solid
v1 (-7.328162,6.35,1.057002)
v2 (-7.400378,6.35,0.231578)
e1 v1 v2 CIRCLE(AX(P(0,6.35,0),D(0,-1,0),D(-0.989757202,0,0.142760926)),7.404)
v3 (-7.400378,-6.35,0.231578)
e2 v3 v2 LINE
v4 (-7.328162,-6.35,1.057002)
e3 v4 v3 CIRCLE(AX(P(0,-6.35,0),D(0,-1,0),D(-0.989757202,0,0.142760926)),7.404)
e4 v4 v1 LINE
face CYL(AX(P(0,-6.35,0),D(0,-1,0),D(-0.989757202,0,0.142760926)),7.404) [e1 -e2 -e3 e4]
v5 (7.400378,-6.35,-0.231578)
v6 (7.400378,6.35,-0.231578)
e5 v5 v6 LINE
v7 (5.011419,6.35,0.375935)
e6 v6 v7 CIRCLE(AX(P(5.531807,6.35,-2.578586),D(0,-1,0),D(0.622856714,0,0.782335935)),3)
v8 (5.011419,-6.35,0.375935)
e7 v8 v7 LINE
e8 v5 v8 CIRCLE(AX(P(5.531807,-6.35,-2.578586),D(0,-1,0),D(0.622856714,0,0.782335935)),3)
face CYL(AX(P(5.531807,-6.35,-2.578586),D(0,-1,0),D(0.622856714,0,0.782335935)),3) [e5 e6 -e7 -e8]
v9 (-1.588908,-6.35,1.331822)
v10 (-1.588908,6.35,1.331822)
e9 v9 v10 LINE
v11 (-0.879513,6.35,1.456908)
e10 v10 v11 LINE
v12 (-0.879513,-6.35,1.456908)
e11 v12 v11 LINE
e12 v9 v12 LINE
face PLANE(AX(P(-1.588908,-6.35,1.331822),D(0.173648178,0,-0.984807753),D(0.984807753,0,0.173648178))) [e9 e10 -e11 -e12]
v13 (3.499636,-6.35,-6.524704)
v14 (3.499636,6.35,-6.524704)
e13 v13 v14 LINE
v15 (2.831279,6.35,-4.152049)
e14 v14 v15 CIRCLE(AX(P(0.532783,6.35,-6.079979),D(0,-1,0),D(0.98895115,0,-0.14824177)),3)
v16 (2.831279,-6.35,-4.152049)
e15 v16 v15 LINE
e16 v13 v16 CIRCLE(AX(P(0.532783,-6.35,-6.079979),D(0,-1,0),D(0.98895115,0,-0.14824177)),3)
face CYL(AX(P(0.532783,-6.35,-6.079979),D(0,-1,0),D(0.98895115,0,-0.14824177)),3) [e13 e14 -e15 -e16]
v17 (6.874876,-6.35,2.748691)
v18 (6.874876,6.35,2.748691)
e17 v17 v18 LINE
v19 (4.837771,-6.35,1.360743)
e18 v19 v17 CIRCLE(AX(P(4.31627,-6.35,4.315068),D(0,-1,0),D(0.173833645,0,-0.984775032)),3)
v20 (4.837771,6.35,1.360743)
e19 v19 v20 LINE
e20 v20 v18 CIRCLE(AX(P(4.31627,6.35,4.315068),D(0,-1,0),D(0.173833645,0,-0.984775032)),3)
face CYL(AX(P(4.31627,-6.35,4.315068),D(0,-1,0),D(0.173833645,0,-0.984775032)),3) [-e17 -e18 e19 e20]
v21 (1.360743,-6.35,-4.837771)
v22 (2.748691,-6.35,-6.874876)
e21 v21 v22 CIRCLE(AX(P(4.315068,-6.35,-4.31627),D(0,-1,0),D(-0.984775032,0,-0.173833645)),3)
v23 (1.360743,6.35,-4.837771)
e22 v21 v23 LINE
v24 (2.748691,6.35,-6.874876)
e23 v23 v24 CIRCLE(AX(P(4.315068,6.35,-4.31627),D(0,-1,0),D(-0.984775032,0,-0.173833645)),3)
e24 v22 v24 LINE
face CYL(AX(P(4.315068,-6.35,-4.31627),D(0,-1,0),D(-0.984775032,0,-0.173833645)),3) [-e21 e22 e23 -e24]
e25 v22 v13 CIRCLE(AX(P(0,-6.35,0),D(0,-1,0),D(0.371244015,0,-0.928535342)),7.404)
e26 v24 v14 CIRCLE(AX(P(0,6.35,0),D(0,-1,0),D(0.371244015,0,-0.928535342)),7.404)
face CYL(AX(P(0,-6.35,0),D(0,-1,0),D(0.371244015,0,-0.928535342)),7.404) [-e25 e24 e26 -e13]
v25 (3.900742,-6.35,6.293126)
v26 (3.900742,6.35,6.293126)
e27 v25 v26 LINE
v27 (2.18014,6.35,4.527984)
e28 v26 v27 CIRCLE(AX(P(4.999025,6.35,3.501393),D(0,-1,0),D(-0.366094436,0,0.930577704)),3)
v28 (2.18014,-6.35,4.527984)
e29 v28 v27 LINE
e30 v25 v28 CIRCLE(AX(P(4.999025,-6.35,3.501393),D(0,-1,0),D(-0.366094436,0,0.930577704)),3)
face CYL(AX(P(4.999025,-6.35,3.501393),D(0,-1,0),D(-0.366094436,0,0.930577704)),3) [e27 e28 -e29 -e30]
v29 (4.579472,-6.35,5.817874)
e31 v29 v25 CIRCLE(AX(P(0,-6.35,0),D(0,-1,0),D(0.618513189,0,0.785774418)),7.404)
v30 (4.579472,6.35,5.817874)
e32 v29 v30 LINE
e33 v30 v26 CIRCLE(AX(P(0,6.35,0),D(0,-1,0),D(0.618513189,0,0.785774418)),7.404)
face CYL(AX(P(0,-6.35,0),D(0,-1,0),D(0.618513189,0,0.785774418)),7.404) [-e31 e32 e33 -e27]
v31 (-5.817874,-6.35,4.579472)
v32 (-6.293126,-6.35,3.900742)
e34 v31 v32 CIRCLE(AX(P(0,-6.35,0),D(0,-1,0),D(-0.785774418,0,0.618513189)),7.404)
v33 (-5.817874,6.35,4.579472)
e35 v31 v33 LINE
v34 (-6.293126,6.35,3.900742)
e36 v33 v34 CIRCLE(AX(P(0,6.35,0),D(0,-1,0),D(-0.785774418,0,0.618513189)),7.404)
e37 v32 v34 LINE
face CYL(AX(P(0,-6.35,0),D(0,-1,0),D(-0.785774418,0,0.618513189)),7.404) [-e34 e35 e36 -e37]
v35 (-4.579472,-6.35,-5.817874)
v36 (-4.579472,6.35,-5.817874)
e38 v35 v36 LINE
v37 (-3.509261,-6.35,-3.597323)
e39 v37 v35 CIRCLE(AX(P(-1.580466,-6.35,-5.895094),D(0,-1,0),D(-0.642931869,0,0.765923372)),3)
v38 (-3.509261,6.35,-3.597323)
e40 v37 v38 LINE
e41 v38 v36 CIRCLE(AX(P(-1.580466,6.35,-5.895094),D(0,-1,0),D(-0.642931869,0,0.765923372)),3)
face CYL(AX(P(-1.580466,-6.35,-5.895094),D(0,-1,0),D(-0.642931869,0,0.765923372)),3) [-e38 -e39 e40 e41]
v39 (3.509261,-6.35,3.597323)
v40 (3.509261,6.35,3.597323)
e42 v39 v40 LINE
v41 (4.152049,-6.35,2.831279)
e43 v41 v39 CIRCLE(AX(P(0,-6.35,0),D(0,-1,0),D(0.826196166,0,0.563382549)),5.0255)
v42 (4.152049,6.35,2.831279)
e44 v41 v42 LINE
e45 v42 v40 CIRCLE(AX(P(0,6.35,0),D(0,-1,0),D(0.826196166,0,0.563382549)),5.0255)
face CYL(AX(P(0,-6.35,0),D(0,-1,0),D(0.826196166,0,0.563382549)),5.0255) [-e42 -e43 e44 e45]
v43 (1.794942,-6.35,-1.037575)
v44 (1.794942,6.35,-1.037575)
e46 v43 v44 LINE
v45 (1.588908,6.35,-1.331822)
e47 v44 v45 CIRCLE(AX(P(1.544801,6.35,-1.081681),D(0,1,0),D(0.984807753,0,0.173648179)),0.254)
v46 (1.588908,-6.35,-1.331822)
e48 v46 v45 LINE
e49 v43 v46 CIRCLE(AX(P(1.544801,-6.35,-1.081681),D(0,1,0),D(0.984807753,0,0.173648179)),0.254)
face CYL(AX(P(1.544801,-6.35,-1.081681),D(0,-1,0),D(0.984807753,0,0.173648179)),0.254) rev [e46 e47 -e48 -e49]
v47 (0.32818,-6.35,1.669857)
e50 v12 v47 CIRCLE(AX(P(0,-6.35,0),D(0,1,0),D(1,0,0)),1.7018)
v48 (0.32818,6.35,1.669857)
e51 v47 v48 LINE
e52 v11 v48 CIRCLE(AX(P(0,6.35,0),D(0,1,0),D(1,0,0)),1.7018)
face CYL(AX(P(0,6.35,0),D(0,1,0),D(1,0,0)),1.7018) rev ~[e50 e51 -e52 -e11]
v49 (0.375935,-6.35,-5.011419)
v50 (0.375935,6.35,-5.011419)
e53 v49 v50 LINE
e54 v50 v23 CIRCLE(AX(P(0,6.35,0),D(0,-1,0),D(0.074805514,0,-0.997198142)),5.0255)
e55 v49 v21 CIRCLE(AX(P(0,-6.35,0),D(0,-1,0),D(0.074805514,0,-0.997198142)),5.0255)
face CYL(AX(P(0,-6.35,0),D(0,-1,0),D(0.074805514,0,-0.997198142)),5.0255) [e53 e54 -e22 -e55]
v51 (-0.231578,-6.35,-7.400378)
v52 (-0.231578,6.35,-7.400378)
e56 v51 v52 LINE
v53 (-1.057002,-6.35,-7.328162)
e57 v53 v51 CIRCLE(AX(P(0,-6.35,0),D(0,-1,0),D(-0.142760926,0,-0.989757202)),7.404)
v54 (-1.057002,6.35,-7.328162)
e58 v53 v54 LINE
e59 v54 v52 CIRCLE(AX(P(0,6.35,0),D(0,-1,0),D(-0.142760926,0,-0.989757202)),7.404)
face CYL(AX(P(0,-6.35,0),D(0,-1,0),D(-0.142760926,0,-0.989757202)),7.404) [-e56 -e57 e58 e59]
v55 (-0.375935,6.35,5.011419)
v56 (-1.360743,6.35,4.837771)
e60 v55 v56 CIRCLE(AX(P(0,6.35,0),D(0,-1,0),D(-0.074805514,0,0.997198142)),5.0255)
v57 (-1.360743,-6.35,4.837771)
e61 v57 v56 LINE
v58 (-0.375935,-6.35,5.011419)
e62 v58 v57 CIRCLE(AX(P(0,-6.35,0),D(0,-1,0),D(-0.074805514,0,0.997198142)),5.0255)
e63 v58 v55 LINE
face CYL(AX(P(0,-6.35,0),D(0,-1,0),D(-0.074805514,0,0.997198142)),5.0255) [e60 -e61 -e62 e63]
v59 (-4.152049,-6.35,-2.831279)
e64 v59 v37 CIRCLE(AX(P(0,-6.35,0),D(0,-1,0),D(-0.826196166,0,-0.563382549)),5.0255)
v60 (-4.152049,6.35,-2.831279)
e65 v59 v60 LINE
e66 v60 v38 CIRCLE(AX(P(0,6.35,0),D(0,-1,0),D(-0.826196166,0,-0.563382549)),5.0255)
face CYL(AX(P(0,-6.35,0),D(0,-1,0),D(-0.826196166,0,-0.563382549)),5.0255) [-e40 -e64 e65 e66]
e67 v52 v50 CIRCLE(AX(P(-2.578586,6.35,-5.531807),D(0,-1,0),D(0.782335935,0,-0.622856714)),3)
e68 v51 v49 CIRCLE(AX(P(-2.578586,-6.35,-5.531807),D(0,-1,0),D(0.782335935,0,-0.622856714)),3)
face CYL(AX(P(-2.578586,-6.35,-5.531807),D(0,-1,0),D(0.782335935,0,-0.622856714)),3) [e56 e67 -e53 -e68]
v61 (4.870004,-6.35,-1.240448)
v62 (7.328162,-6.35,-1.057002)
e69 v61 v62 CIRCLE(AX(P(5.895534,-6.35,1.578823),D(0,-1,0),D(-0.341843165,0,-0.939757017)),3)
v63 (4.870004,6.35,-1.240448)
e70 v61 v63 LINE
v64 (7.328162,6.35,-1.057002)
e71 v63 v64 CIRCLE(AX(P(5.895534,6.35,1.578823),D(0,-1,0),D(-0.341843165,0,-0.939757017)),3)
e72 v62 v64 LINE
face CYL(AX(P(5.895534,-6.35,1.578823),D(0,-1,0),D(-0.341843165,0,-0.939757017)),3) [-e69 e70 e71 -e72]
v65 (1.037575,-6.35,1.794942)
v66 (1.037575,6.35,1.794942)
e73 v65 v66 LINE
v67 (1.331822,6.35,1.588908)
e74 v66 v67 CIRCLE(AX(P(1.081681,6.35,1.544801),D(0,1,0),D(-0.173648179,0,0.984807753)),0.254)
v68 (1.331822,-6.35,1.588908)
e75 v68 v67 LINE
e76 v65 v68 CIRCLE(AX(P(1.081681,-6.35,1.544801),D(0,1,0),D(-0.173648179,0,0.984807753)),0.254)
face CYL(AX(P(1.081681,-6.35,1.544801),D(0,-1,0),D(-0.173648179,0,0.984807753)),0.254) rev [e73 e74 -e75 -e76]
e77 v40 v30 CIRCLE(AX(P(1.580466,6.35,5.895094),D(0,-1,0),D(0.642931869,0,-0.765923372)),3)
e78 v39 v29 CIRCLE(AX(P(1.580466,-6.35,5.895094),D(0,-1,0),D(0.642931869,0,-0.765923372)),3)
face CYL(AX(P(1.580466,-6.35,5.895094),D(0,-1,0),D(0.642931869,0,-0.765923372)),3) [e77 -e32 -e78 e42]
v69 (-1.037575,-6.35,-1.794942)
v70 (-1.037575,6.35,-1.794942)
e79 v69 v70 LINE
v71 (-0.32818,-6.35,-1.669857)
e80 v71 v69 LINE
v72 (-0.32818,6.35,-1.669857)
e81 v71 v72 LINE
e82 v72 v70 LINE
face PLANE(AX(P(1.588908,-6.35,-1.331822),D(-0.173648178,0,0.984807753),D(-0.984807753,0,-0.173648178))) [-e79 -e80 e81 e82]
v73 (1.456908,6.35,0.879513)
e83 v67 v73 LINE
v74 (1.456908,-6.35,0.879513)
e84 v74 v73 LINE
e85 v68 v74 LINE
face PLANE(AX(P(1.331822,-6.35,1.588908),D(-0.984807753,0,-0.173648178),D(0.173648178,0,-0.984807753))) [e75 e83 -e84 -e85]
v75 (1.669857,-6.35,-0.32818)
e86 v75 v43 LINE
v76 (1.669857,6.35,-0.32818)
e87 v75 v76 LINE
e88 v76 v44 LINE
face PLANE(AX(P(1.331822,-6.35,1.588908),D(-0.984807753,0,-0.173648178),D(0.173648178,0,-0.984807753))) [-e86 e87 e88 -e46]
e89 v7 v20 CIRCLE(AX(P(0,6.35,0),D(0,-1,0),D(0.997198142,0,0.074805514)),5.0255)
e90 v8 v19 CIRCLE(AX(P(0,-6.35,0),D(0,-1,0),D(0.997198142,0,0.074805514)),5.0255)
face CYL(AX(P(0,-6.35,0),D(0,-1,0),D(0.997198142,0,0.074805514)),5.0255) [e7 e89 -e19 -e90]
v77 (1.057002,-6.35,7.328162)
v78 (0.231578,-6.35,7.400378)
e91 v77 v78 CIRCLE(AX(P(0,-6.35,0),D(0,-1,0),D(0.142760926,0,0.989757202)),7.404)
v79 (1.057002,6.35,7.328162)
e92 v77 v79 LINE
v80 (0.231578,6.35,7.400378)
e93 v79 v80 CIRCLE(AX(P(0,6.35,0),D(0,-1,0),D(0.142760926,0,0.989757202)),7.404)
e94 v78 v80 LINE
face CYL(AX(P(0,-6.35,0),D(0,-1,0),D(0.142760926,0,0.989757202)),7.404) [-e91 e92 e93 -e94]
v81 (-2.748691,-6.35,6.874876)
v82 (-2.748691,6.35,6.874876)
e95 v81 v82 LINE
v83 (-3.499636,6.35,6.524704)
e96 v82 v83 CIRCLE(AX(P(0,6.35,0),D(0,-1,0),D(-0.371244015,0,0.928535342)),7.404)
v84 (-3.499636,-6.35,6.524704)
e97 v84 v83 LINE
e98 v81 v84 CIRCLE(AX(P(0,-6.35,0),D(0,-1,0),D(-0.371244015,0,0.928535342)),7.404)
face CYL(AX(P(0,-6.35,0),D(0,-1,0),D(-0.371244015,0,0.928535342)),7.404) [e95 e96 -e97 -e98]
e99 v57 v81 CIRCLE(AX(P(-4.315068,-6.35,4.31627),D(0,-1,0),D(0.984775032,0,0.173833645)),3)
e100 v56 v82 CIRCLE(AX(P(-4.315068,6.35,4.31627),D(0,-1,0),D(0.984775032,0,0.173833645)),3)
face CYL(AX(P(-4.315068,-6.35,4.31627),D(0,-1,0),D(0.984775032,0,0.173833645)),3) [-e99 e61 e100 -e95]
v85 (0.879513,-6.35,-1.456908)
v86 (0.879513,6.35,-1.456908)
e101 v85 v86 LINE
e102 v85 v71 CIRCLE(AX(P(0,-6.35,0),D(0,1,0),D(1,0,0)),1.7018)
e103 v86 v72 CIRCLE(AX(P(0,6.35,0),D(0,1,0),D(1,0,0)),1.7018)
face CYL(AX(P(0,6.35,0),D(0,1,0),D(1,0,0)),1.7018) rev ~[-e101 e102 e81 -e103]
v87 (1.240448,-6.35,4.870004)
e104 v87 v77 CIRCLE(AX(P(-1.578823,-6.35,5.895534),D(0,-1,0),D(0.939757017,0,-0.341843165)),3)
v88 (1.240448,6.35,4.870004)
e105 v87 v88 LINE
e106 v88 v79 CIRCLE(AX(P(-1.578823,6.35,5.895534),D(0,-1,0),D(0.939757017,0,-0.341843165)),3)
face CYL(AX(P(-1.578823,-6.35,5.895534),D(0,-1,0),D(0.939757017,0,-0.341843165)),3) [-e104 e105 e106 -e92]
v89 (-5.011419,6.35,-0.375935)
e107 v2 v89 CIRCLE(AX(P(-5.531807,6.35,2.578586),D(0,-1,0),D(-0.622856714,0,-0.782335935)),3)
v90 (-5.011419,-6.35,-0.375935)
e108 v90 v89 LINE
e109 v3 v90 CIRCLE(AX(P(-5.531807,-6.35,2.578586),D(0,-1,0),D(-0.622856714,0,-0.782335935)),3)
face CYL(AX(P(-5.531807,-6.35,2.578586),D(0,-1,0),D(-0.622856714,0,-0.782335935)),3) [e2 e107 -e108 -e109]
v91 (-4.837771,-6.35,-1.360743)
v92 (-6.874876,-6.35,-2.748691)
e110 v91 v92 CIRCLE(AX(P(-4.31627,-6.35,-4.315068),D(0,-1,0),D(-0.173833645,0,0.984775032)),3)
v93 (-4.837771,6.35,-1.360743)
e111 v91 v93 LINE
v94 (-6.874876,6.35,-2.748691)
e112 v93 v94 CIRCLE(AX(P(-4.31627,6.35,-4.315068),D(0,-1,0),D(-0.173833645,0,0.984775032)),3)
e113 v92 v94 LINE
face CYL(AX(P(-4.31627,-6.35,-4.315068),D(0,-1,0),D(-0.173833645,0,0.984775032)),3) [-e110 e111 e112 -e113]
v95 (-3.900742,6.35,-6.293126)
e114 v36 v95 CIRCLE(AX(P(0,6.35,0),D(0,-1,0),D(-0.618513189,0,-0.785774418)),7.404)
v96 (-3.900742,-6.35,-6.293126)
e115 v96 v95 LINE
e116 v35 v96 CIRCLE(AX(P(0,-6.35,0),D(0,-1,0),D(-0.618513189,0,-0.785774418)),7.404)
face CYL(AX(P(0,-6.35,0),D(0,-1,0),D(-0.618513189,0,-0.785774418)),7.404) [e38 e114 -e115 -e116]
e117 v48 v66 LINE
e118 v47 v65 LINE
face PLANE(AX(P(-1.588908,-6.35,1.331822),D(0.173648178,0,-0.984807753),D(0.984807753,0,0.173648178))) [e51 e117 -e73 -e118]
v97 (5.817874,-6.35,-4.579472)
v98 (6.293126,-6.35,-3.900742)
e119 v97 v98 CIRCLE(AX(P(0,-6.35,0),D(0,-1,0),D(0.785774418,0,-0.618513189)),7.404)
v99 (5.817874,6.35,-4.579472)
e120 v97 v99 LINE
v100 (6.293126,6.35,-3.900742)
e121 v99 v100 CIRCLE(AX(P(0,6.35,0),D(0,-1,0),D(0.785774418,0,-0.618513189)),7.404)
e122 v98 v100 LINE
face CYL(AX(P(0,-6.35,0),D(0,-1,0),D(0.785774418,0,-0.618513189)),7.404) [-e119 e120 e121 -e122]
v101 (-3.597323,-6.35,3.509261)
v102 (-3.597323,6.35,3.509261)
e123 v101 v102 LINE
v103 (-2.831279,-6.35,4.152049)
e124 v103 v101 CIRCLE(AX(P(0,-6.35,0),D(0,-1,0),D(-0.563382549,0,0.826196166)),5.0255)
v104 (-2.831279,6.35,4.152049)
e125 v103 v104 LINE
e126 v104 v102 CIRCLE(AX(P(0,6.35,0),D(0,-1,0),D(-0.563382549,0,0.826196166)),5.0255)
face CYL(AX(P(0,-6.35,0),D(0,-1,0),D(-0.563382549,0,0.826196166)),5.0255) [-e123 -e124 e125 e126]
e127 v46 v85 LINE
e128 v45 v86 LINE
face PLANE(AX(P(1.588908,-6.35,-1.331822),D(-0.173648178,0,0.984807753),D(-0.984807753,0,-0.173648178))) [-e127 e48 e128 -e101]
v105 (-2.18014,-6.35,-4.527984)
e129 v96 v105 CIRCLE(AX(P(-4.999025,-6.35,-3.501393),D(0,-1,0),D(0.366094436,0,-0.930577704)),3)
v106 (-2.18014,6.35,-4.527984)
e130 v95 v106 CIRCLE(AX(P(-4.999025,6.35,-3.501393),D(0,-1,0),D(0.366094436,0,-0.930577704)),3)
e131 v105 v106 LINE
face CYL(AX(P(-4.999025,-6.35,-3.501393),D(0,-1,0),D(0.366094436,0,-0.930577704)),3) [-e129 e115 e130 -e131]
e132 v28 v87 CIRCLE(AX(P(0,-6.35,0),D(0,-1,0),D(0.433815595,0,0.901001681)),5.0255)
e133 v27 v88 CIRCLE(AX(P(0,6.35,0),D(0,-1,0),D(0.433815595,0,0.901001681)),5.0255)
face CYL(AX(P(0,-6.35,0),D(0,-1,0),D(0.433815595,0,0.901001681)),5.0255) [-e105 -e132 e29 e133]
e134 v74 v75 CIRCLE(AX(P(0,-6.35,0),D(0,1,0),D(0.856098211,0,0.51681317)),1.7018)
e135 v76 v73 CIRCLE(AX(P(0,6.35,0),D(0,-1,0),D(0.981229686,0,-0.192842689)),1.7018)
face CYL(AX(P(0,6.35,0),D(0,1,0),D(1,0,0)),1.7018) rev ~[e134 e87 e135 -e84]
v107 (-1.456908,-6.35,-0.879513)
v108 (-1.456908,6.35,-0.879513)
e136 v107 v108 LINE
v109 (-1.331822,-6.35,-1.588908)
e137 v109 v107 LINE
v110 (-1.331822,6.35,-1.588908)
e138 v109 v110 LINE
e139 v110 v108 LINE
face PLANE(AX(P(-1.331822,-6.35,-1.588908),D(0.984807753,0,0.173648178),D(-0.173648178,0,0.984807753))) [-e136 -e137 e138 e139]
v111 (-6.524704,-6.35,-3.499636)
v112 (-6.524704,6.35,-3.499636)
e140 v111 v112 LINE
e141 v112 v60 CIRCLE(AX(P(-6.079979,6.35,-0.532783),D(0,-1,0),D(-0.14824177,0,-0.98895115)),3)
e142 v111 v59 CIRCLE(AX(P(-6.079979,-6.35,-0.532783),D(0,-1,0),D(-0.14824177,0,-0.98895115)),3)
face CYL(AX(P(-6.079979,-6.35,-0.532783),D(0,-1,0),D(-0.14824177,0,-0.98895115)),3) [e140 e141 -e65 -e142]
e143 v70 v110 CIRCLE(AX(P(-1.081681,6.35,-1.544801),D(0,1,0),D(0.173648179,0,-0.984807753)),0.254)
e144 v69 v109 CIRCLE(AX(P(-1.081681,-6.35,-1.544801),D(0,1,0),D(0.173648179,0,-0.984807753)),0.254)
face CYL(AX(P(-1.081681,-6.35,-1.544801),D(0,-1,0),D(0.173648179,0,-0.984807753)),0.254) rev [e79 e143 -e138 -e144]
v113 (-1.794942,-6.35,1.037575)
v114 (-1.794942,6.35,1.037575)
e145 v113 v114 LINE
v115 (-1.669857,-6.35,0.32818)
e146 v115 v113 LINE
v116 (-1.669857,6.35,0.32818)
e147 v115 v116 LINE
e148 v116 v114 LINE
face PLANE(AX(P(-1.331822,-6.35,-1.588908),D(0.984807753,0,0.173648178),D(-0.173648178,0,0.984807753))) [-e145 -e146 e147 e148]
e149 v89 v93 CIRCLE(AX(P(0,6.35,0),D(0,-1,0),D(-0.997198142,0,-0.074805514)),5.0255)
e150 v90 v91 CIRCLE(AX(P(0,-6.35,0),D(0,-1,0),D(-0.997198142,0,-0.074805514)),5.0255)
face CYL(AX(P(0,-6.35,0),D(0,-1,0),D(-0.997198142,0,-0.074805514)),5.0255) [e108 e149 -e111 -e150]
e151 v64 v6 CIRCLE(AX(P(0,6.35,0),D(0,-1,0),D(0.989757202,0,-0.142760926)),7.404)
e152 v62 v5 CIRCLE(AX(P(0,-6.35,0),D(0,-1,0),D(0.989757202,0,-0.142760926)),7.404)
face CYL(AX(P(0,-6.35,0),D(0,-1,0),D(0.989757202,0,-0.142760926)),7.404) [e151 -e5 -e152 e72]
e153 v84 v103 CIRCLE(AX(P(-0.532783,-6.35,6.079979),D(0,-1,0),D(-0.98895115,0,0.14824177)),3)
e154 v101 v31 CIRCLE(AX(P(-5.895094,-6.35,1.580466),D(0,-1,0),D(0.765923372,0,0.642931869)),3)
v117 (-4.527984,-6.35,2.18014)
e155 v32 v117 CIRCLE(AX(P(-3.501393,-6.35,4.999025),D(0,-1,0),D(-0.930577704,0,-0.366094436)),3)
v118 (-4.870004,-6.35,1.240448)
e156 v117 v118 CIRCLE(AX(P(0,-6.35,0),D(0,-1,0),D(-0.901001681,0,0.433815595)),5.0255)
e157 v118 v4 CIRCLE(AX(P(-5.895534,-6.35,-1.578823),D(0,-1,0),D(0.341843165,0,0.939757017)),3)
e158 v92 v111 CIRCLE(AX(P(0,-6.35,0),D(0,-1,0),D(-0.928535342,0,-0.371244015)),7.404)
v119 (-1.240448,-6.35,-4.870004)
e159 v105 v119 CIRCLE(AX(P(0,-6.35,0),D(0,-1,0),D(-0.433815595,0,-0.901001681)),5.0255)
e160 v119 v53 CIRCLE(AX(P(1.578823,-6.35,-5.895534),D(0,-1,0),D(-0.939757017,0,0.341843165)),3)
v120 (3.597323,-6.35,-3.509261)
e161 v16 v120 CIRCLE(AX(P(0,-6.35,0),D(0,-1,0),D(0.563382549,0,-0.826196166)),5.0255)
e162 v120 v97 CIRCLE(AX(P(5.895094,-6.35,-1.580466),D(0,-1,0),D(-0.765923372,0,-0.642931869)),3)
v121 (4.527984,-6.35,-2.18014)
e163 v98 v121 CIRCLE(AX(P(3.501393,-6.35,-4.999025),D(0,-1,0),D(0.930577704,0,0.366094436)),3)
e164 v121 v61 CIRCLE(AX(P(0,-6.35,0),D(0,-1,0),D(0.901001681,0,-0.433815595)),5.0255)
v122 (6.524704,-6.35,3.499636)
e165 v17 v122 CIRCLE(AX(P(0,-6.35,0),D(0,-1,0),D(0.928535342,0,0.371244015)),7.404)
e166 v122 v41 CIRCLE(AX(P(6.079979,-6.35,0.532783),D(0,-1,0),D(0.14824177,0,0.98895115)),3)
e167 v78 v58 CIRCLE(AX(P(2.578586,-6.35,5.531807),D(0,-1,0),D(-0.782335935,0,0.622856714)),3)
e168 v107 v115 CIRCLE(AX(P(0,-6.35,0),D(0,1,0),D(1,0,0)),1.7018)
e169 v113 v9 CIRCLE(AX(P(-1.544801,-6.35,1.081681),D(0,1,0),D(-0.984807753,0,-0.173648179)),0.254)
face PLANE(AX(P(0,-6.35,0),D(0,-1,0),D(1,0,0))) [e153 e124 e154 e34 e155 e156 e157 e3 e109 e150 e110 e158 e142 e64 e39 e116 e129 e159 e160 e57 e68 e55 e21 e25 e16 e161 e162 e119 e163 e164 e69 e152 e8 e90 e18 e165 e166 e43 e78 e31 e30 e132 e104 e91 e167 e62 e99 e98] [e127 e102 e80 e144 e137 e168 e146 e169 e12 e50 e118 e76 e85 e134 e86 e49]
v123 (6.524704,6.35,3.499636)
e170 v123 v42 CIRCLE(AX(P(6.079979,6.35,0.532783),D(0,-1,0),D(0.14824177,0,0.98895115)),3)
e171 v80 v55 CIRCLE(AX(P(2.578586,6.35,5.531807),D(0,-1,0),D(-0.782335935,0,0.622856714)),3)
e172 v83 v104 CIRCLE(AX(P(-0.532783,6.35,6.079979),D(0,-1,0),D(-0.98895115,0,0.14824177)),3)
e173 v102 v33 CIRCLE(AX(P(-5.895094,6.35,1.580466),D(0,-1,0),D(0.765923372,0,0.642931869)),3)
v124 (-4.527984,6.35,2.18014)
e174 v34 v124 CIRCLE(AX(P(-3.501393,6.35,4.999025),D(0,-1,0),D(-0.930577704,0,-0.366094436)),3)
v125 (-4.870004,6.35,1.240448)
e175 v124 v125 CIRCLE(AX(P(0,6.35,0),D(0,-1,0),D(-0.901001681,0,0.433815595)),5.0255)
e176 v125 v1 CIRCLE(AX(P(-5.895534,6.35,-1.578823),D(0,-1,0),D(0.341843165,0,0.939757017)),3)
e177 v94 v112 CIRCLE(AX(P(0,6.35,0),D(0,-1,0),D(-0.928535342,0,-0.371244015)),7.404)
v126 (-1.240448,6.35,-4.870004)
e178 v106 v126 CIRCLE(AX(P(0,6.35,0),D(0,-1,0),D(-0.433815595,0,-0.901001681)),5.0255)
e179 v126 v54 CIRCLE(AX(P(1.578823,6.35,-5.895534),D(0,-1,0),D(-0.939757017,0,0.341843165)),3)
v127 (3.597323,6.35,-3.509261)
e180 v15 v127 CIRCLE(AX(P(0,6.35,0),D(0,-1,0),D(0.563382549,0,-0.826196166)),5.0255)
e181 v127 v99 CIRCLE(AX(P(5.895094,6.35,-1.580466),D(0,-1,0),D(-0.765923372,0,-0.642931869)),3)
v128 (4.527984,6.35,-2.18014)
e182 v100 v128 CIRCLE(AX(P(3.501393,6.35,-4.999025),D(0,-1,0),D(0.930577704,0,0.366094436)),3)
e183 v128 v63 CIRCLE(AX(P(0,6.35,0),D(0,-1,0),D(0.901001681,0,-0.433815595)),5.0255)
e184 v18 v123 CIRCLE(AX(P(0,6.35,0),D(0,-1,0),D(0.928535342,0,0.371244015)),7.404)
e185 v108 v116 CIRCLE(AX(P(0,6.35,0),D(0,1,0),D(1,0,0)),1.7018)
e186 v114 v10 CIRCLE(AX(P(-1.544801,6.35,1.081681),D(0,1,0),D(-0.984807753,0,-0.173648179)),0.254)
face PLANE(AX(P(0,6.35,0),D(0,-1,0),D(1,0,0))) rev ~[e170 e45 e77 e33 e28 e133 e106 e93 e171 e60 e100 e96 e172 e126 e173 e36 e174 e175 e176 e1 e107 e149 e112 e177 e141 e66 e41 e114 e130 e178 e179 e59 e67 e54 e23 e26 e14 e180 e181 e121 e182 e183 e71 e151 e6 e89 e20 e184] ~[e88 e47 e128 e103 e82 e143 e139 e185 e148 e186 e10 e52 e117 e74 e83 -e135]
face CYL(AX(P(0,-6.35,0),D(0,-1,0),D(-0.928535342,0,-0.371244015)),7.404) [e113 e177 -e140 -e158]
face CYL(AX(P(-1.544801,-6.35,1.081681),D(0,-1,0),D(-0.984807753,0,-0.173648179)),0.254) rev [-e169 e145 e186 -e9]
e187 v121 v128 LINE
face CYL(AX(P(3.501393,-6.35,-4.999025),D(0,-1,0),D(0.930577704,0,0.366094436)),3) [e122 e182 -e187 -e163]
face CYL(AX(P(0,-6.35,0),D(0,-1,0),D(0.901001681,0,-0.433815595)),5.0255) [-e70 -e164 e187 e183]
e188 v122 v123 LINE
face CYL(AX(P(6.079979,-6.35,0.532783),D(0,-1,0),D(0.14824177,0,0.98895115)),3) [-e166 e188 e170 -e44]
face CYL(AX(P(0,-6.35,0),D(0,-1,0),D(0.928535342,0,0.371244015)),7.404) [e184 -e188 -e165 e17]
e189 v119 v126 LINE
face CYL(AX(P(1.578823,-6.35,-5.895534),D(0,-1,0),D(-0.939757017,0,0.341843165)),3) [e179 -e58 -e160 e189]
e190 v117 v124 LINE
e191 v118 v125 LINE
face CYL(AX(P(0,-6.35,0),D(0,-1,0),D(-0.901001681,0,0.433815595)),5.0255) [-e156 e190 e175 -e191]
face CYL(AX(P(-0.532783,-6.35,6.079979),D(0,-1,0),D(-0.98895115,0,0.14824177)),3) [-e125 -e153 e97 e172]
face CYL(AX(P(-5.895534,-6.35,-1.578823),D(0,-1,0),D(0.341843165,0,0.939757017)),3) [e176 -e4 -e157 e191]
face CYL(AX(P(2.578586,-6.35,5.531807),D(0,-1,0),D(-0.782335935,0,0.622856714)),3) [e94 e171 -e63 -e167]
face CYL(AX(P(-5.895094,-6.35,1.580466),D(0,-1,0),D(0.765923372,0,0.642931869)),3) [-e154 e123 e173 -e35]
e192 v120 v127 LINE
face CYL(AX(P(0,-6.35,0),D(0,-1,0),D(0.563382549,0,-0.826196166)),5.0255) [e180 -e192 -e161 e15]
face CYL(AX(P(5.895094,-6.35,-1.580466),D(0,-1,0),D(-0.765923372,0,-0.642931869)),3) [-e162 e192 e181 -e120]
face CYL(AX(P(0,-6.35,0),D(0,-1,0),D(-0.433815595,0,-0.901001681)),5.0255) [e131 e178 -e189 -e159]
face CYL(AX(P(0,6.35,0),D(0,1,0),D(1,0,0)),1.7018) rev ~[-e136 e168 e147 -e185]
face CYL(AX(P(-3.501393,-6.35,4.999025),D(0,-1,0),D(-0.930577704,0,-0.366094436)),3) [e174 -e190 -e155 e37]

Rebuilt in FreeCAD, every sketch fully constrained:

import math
import FreeCAD as App
import Part
import Sketcher
from FreeCAD import Vector
Q = App.Units.Quantity

doc = App.newDocument("Part")
body = doc.addObject("PartDesign::Body", "Body")

sketch1 = body.newObject("Sketcher::SketchObject", "Sketch")
sketch1.AttachmentSupport = (doc.getObject("XZ_Plane"), [""])
sketch1.MapMode = "FlatFace"
sketch1.AttachmentOffset = App.Placement(Vector(0, 0, 0.25 * 25.4), App.Rotation())
sketch1.addGeometry(Part.ArcOfCircle(Part.Circle(Vector(5, 3.5, 0), Vector(0, 0, 1), 3), math.radians(111), math.radians(160)), False)
sketch1.addGeometry(Part.ArcOfCircle(Part.Circle(Vector(0, 0, 0), Vector(0, 0, 1), 5.03), math.radians(64.29), math.radians(75.71)), False)
sketch1.addGeometry(Part.ArcOfCircle(Part.Circle(Vector(-1.58, 5.9, 0), Vector(0, 0, 1), 3), math.radians(-20), math.radians(29)), False)
sketch1.addGeometry(Part.ArcOfCircle(Part.Circle(Vector(0, 0, 0), Vector(0, 0, 1), 7.4), math.radians(81.79), math.radians(88.21)), False)
sketch1.addGeometry(Part.ArcOfCircle(Part.Circle(Vector(2.58, 5.53, 0), Vector(0, 0, 1), 3), math.radians(141), math.radians(190)), False)
sketch1.addGeometry(Part.ArcOfCircle(Part.Circle(Vector(0, 0, 0), Vector(0, 0, 1), 5.03), math.radians(94.29), math.radians(105.71)), False)
sketch1.addGeometry(Part.ArcOfCircle(Part.Circle(Vector(-4.32, 4.32, 0), Vector(0, 0, 1), 3), math.radians(10), math.radians(59)), False)
sketch1.addGeometry(Part.ArcOfCircle(Part.Circle(Vector(0, 0, 0), Vector(0, 0, 1), 7.4), math.radians(111.79), math.radians(118.21)), False)
sketch1.addGeometry(Part.ArcOfCircle(Part.Circle(Vector(-0.53, 6.08, 0), Vector(0, 0, 1), 3), math.radians(171), math.radians(220)), False)
sketch1.addGeometry(Part.ArcOfCircle(Part.Circle(Vector(0, 0, 0), Vector(0, 0, 1), 5.03), math.radians(124.29), math.radians(135.71)), False)
sketch1.addGeometry(Part.ArcOfCircle(Part.Circle(Vector(-5.9, 1.58, 0), Vector(0, 0, 1), 3), math.radians(40), math.radians(89)), False)
sketch1.addGeometry(Part.ArcOfCircle(Part.Circle(Vector(0, 0, 0), Vector(0, 0, 1), 7.4), math.radians(141.79), math.radians(148.21)), False)
sketch1.addGeometry(Part.ArcOfCircle(Part.Circle(Vector(-3.5, 5, 0), Vector(0, 0, 1), 3), math.radians(-159), math.radians(-110)), False)
sketch1.addGeometry(Part.ArcOfCircle(Part.Circle(Vector(0, 0, 0), Vector(0, 0, 1), 5.03), math.radians(154.29), math.radians(165.71)), False)
sketch1.addGeometry(Part.ArcOfCircle(Part.Circle(Vector(-5.9, -1.58, 0), Vector(0, 0, 1), 3), math.radians(70), math.radians(119)), False)
sketch1.addGeometry(Part.ArcOfCircle(Part.Circle(Vector(0, 0, 0), Vector(0, 0, 1), 7.4), math.radians(171.79), math.radians(178.21)), False)
sketch1.addGeometry(Part.ArcOfCircle(Part.Circle(Vector(-5.53, 2.58, 0), Vector(0, 0, 1), 3), math.radians(-129), math.radians(-80)), False)
sketch1.addGeometry(Part.ArcOfCircle(Part.Circle(Vector(0, 0, 0), Vector(0, 0, 1), 5.03), math.radians(-175.71), math.radians(-164.29)), False)
sketch1.addGeometry(Part.ArcOfCircle(Part.Circle(Vector(-4.32, -4.32, 0), Vector(0, 0, 1), 3), math.radians(100), math.radians(149)), False)
sketch1.addGeometry(Part.ArcOfCircle(Part.Circle(Vector(0, 0, 0), Vector(0, 0, 1), 7.4), math.radians(-158.21), math.radians(-151.79)), False)
sketch1.addGeometry(Part.ArcOfCircle(Part.Circle(Vector(-6.08, -0.53, 0), Vector(0, 0, 1), 3), math.radians(-99), math.radians(-50)), False)
sketch1.addGeometry(Part.ArcOfCircle(Part.Circle(Vector(0, 0, 0), Vector(0, 0, 1), 5.03), math.radians(-145.71), math.radians(-134.29)), False)
sketch1.addGeometry(Part.ArcOfCircle(Part.Circle(Vector(-1.58, -5.9, 0), Vector(0, 0, 1), 3), math.radians(130), math.radians(179)), False)
sketch1.addGeometry(Part.ArcOfCircle(Part.Circle(Vector(0, 0, 0), Vector(0, 0, 1), 7.4), math.radians(-128.21), math.radians(-121.79)), False)
sketch1.addGeometry(Part.ArcOfCircle(Part.Circle(Vector(-5, -3.5, 0), Vector(0, 0, 1), 3), math.radians(-69), math.radians(-20)), False)
sketch1.addGeometry(Part.ArcOfCircle(Part.Circle(Vector(0, 0, 0), Vector(0, 0, 1), 5.03), math.radians(-115.71), math.radians(-104.29)), False)
sketch1.addGeometry(Part.ArcOfCircle(Part.Circle(Vector(1.58, -5.9, 0), Vector(0, 0, 1), 3), math.radians(160), math.radians(209)), False)
sketch1.addGeometry(Part.ArcOfCircle(Part.Circle(Vector(0, 0, 0), Vector(0, 0, 1), 7.4), math.radians(-98.21), math.radians(-91.79)), False)
sketch1.addGeometry(Part.ArcOfCircle(Part.Circle(Vector(-2.58, -5.53, 0), Vector(0, 0, 1), 3), math.radians(-39), math.radians(10)), False)
sketch1.addGeometry(Part.ArcOfCircle(Part.Circle(Vector(0, 0, 0), Vector(0, 0, 1), 5.03), math.radians(-85.71), math.radians(-74.29)), False)
sketch1.addGeometry(Part.ArcOfCircle(Part.Circle(Vector(4.32, -4.32, 0), Vector(0, 0, 1), 3), math.radians(-170), math.radians(-121)), False)
sketch1.addGeometry(Part.ArcOfCircle(Part.Circle(Vector(0, 0, 0), Vector(0, 0, 1), 7.4), math.radians(-68.21), math.radians(-61.79)), False)
sketch1.addGeometry(Part.ArcOfCircle(Part.Circle(Vector(0.53, -6.08, 0), Vector(0, 0, 1), 3), math.radians(-9), math.radians(40)), False)
sketch1.addGeometry(Part.ArcOfCircle(Part.Circle(Vector(0, 0, 0), Vector(0, 0, 1), 5.03), math.radians(-55.71), math.radians(-44.29)), False)
sketch1.addGeometry(Part.ArcOfCircle(Part.Circle(Vector(5.9, -1.58, 0), Vector(0, 0, 1), 3), math.radians(-140), math.radians(-91)), False)
sketch1.addGeometry(Part.ArcOfCircle(Part.Circle(Vector(0, 0, 0), Vector(0, 0, 1), 7.4), math.radians(-38.21), math.radians(-31.79)), False)
sketch1.addGeometry(Part.ArcOfCircle(Part.Circle(Vector(3.5, -5, 0), Vector(0, 0, 1), 3), math.radians(21), math.radians(70)), False)
sketch1.addGeometry(Part.ArcOfCircle(Part.Circle(Vector(0, 0, 0), Vector(0, 0, 1), 5.03), math.radians(-25.71), math.radians(-14.29)), False)
sketch1.addGeometry(Part.ArcOfCircle(Part.Circle(Vector(5.9, 1.58, 0), Vector(0, 0, 1), 3), math.radians(-110), math.radians(-61)), False)
sketch1.addGeometry(Part.ArcOfCircle(Part.Circle(Vector(0, 0, 0), Vector(0, 0, 1), 7.4), math.radians(-8.21), math.radians(-1.79)), False)
sketch1.addGeometry(Part.ArcOfCircle(Part.Circle(Vector(5.53, -2.58, 0), Vector(0, 0, 1), 3), math.radians(51), math.radians(100)), False)
sketch1.addGeometry(Part.ArcOfCircle(Part.Circle(Vector(0, 0, 0), Vector(0, 0, 1), 5.03), math.radians(4.29), math.radians(15.71)), False)
sketch1.addGeometry(Part.ArcOfCircle(Part.Circle(Vector(4.32, 4.32, 0), Vector(0, 0, 1), 3), math.radians(-80), math.radians(-31)), False)
sketch1.addGeometry(Part.ArcOfCircle(Part.Circle(Vector(0, 0, 0), Vector(0, 0, 1), 7.4), math.radians(21.79), math.radians(28.21)), False)
sketch1.addGeometry(Part.ArcOfCircle(Part.Circle(Vector(6.08, 0.53, 0), Vector(0, 0, 1), 3), math.radians(81), math.radians(130)), False)
sketch1.addGeometry(Part.ArcOfCircle(Part.Circle(Vector(0, 0, 0), Vector(0, 0, 1), 5.03), math.radians(34.29), math.radians(45.71)), False)
sketch1.addGeometry(Part.ArcOfCircle(Part.Circle(Vector(1.58, 5.9, 0), Vector(0, 0, 1), 3), math.radians(-50), math.radians(-1)), False)
sketch1.addGeometry(Part.ArcOfCircle(Part.Circle(Vector(0, 0, 0), Vector(0, 0, 1), 7.4), math.radians(51.79), math.radians(58.21)), False)
sketch1.addGeometry(Part.ArcOfCircle(Part.Circle(Vector(1.08, 1.54, 0), Vector(0, 0, 1), 0.25), math.radians(10), math.radians(100)), False)
sketch1.addGeometry(Part.LineSegment(Vector(1.33, 1.59, 0), Vector(1.79, -1.04, 0)), False)
sketch1.addGeometry(Part.ArcOfCircle(Part.Circle(Vector(1.54, -1.08, 0), Vector(0, 0, 1), 0.25), math.radians(-80), math.radians(10)), False)
sketch1.addGeometry(Part.LineSegment(Vector(1.59, -1.33, 0), Vector(-1.04, -1.79, 0)), False)
sketch1.addGeometry(Part.ArcOfCircle(Part.Circle(Vector(-1.08, -1.54, 0), Vector(0, 0, 1), 0.25), math.radians(-170), math.radians(-80)), False)
sketch1.addGeometry(Part.LineSegment(Vector(-1.33, -1.59, 0), Vector(-1.79, 1.04, 0)), False)
sketch1.addGeometry(Part.ArcOfCircle(Part.Circle(Vector(-1.54, 1.08, 0), Vector(0, 0, 1), 0.25), math.radians(100), math.radians(190)), False)
sketch1.addGeometry(Part.LineSegment(Vector(-1.59, 1.33, 0), Vector(1.04, 1.79, 0)), False)
sketch1.addConstraint(Sketcher.Constraint("Coincident", 0, 2, 1, 1))
sketch1.addConstraint(Sketcher.Constraint("Coincident", 1, 2, 2, 1))
sketch1.addConstraint(Sketcher.Constraint("Coincident", 2, 2, 3, 1))
sketch1.addConstraint(Sketcher.Constraint("Coincident", 3, 2, 4, 1))
sketch1.addConstraint(Sketcher.Constraint("Coincident", 4, 2, 5, 1))
sketch1.addConstraint(Sketcher.Constraint("Coincident", 5, 2, 6, 1))
sketch1.addConstraint(Sketcher.Constraint("Coincident", 6, 2, 7, 1))
sketch1.addConstraint(Sketcher.Constraint("Coincident", 7, 2, 8, 1))
sketch1.addConstraint(Sketcher.Constraint("Coincident", 8, 2, 9, 1))
sketch1.addConstraint(Sketcher.Constraint("Coincident", 9, 2, 10, 1))
sketch1.addConstraint(Sketcher.Constraint("Coincident", 10, 2, 11, 1))
sketch1.addConstraint(Sketcher.Constraint("Coincident", 11, 2, 12, 1))
sketch1.addConstraint(Sketcher.Constraint("Coincident", 12, 2, 13, 1))
sketch1.addConstraint(Sketcher.Constraint("Coincident", 13, 2, 14, 1))
sketch1.addConstraint(Sketcher.Constraint("Coincident", 14, 2, 15, 1))
sketch1.addConstraint(Sketcher.Constraint("Coincident", 15, 2, 16, 1))
sketch1.addConstraint(Sketcher.Constraint("Coincident", 16, 2, 17, 1))
sketch1.addConstraint(Sketcher.Constraint("Coincident", 17, 2, 18, 1))
sketch1.addConstraint(Sketcher.Constraint("Coincident", 18, 2, 19, 1))
sketch1.addConstraint(Sketcher.Constraint("Coincident", 19, 2, 20, 1))
sketch1.addConstraint(Sketcher.Constraint("Coincident", 20, 2, 21, 1))
sketch1.addConstraint(Sketcher.Constraint("Coincident", 21, 2, 22, 1))
sketch1.addConstraint(Sketcher.Constraint("Coincident", 22, 2, 23, 1))
sketch1.addConstraint(Sketcher.Constraint("Coincident", 23, 2, 24, 1))
sketch1.addConstraint(Sketcher.Constraint("Coincident", 24, 2, 25, 1))
sketch1.addConstraint(Sketcher.Constraint("Coincident", 25, 2, 26, 1))
sketch1.addConstraint(Sketcher.Constraint("Coincident", 26, 2, 27, 1))
sketch1.addConstraint(Sketcher.Constraint("Coincident", 27, 2, 28, 1))
sketch1.addConstraint(Sketcher.Constraint("Coincident", 28, 2, 29, 1))
sketch1.addConstraint(Sketcher.Constraint("Coincident", 29, 2, 30, 1))
sketch1.addConstraint(Sketcher.Constraint("Coincident", 30, 2, 31, 1))
sketch1.addConstraint(Sketcher.Constraint("Coincident", 31, 2, 32, 1))
sketch1.addConstraint(Sketcher.Constraint("Coincident", 32, 2, 33, 1))
sketch1.addConstraint(Sketcher.Constraint("Coincident", 33, 2, 34, 1))
sketch1.addConstraint(Sketcher.Constraint("Coincident", 34, 2, 35, 1))
sketch1.addConstraint(Sketcher.Constraint("Coincident", 35, 2, 36, 1))
sketch1.addConstraint(Sketcher.Constraint("Coincident", 36, 2, 37, 1))
sketch1.addConstraint(Sketcher.Constraint("Coincident", 37, 2, 38, 1))
sketch1.addConstraint(Sketcher.Constraint("Coincident", 38, 2, 39, 1))
sketch1.addConstraint(Sketcher.Constraint("Coincident", 39, 2, 40, 1))
sketch1.addConstraint(Sketcher.Constraint("Coincident", 40, 2, 41, 1))
sketch1.addConstraint(Sketcher.Constraint("Coincident", 41, 2, 42, 1))
sketch1.addConstraint(Sketcher.Constraint("Coincident", 42, 2, 43, 1))
sketch1.addConstraint(Sketcher.Constraint("Coincident", 43, 2, 44, 1))
sketch1.addConstraint(Sketcher.Constraint("Coincident", 44, 2, 45, 1))
sketch1.addConstraint(Sketcher.Constraint("Coincident", 45, 2, 46, 1))
sketch1.addConstraint(Sketcher.Constraint("Coincident", 46, 2, 47, 1))
sketch1.addConstraint(Sketcher.Constraint("Coincident", 47, 2, 0, 1))
sketch1.addConstraint(Sketcher.Constraint("Tangent", 48, 1, 49, 1))
sketch1.addConstraint(Sketcher.Constraint("Tangent", 49, 2, 50, 2))
sketch1.addConstraint(Sketcher.Constraint("Tangent", 50, 1, 51, 1))
sketch1.addConstraint(Sketcher.Constraint("Tangent", 51, 2, 52, 2))
sketch1.addConstraint(Sketcher.Constraint("Tangent", 52, 1, 53, 1))
sketch1.addConstraint(Sketcher.Constraint("Tangent", 53, 2, 54, 2))
sketch1.addConstraint(Sketcher.Constraint("Tangent", 54, 1, 55, 1))
sketch1.addConstraint(Sketcher.Constraint("Tangent", 55, 2, 48, 2))
sketch1.addConstraint(Sketcher.Constraint("Coincident", 1, 3, -1, 1))
sketch1.addConstraint(Sketcher.Constraint("Coincident", 3, 3, -1, 1))
sketch1.addConstraint(Sketcher.Constraint("Coincident", 5, 3, -1, 1))
sketch1.addConstraint(Sketcher.Constraint("Coincident", 7, 3, -1, 1))
sketch1.addConstraint(Sketcher.Constraint("Coincident", 9, 3, -1, 1))
sketch1.addConstraint(Sketcher.Constraint("Coincident", 11, 3, -1, 1))
sketch1.addConstraint(Sketcher.Constraint("Coincident", 13, 3, -1, 1))
sketch1.addConstraint(Sketcher.Constraint("Coincident", 15, 3, -1, 1))
sketch1.addConstraint(Sketcher.Constraint("Coincident", 17, 3, -1, 1))
sketch1.addConstraint(Sketcher.Constraint("Coincident", 19, 3, -1, 1))
sketch1.addConstraint(Sketcher.Constraint("Coincident", 21, 3, -1, 1))
sketch1.addConstraint(Sketcher.Constraint("Coincident", 23, 3, -1, 1))
sketch1.addConstraint(Sketcher.Constraint("Coincident", 25, 3, -1, 1))
sketch1.addConstraint(Sketcher.Constraint("Coincident", 27, 3, -1, 1))
sketch1.addConstraint(Sketcher.Constraint("Coincident", 29, 3, -1, 1))
sketch1.addConstraint(Sketcher.Constraint("Coincident", 31, 3, -1, 1))
sketch1.addConstraint(Sketcher.Constraint("Coincident", 33, 3, -1, 1))
sketch1.addConstraint(Sketcher.Constraint("Coincident", 35, 3, -1, 1))
sketch1.addConstraint(Sketcher.Constraint("Coincident", 37, 3, -1, 1))
sketch1.addConstraint(Sketcher.Constraint("Coincident", 39, 3, -1, 1))
sketch1.addConstraint(Sketcher.Constraint("Coincident", 41, 3, -1, 1))
sketch1.addConstraint(Sketcher.Constraint("Coincident", 43, 3, -1, 1))
sketch1.addConstraint(Sketcher.Constraint("Coincident", 45, 3, -1, 1))
sketch1.addConstraint(Sketcher.Constraint("Coincident", 47, 3, -1, 1))
sketch1.addConstraint(Sketcher.Constraint("Equal", 0, 2))
sketch1.addConstraint(Sketcher.Constraint("Equal", 2, 4))
sketch1.addConstraint(Sketcher.Constraint("Equal", 1, 5))
sketch1.addConstraint(Sketcher.Constraint("Equal", 4, 6))
sketch1.addConstraint(Sketcher.Constraint("Equal", 3, 7))
sketch1.addConstraint(Sketcher.Constraint("Equal", 6, 8))
sketch1.addConstraint(Sketcher.Constraint("Equal", 5, 9))
sketch1.addConstraint(Sketcher.Constraint("Equal", 8, 10))
sketch1.addConstraint(Sketcher.Constraint("Equal", 7, 11))
sketch1.addConstraint(Sketcher.Constraint("Equal", 10, 12))
sketch1.addConstraint(Sketcher.Constraint("Equal", 9, 13))
sketch1.addConstraint(Sketcher.Constraint("Equal", 12, 14))
sketch1.addConstraint(Sketcher.Constraint("Equal", 11, 15))
sketch1.addConstraint(Sketcher.Constraint("Equal", 14, 16))
sketch1.addConstraint(Sketcher.Constraint("Equal", 13, 17))
sketch1.addConstraint(Sketcher.Constraint("Equal", 16, 18))
sketch1.addConstraint(Sketcher.Constraint("Equal", 15, 19))
sketch1.addConstraint(Sketcher.Constraint("Equal", 18, 20))
sketch1.addConstraint(Sketcher.Constraint("Equal", 17, 21))
sketch1.addConstraint(Sketcher.Constraint("Equal", 20, 22))
sketch1.addConstraint(Sketcher.Constraint("Equal", 19, 23))
sketch1.addConstraint(Sketcher.Constraint("Equal", 22, 24))
sketch1.addConstraint(Sketcher.Constraint("Equal", 21, 25))
sketch1.addConstraint(Sketcher.Constraint("Equal", 24, 26))
sketch1.addConstraint(Sketcher.Constraint("Equal", 23, 27))
sketch1.addConstraint(Sketcher.Constraint("Equal", 26, 28))
sketch1.addConstraint(Sketcher.Constraint("Equal", 25, 29))
sketch1.addConstraint(Sketcher.Constraint("Equal", 28, 30))
sketch1.addConstraint(Sketcher.Constraint("Equal", 27, 31))
sketch1.addConstraint(Sketcher.Constraint("Equal", 30, 32))
sketch1.addConstraint(Sketcher.Constraint("Equal", 29, 33))
sketch1.addConstraint(Sketcher.Constraint("Equal", 32, 34))
sketch1.addConstraint(Sketcher.Constraint("Equal", 31, 35))
sketch1.addConstraint(Sketcher.Constraint("Equal", 34, 36))
sketch1.addConstraint(Sketcher.Constraint("Equal", 33, 37))
sketch1.addConstraint(Sketcher.Constraint("Equal", 36, 38))
sketch1.addConstraint(Sketcher.Constraint("Equal", 35, 39))
sketch1.addConstraint(Sketcher.Constraint("Equal", 38, 40))
sketch1.addConstraint(Sketcher.Constraint("Equal", 37, 41))
sketch1.addConstraint(Sketcher.Constraint("Equal", 40, 42))
sketch1.addConstraint(Sketcher.Constraint("Equal", 39, 43))
sketch1.addConstraint(Sketcher.Constraint("Equal", 42, 44))
sketch1.addConstraint(Sketcher.Constraint("Equal", 41, 45))
sketch1.addConstraint(Sketcher.Constraint("Equal", 44, 46))
sketch1.addConstraint(Sketcher.Constraint("Equal", 43, 47))
sketch1.addConstraint(Sketcher.Constraint("Equal", 48, 50))
sketch1.addConstraint(Sketcher.Constraint("Equal", 50, 52))
sketch1.addConstraint(Sketcher.Constraint("Equal", 52, 54))
sketch1.addConstraint(Sketcher.Constraint("Symmetric", 0, 3, 24, 3, -1, 1))
sketch1.addConstraint(Sketcher.Constraint("Symmetric", 2, 3, 26, 3, -1, 1))
sketch1.addConstraint(Sketcher.Constraint("Symmetric", 4, 3, 28, 3, -1, 1))
sketch1.addConstraint(Sketcher.Constraint("Symmetric", 6, 3, 30, 3, -1, 1))
sketch1.addConstraint(Sketcher.Constraint("Symmetric", 8, 3, 32, 3, -1, 1))
sketch1.addConstraint(Sketcher.Constraint("Symmetric", 10, 3, 34, 3, -1, 1))
sketch1.addConstraint(Sketcher.Constraint("Symmetric", 12, 3, 36, 3, -1, 1))
sketch1.addConstraint(Sketcher.Constraint("Symmetric", 14, 3, 38, 3, -1, 1))
sketch1.addConstraint(Sketcher.Constraint("Symmetric", 16, 3, 40, 3, -1, 1))
sketch1.addConstraint(Sketcher.Constraint("Symmetric", 18, 3, 42, 3, -1, 1))
sketch1.addConstraint(Sketcher.Constraint("Symmetric", 20, 3, 44, 3, -1, 1))
sketch1.addConstraint(Sketcher.Constraint("Symmetric", 22, 3, 46, 3, -1, 1))
sketch1.addConstraint(Sketcher.Constraint("Symmetric", 48, 3, 52, 3, -1, 1))
sketch1.addConstraint(Sketcher.Constraint("Symmetric", 50, 3, 54, 3, -1, 1))
sketch1.addConstraint(Sketcher.Constraint("Perpendicular", 49, 51))
sketch1.addConstraint(Sketcher.Constraint("Equal", 49, 51))
sketch1.addConstraint(Sketcher.Constraint("Radius", 48, Q("0.01 in")))
sketch1.addConstraint(Sketcher.Constraint("Angle", 49, Q("-80 deg")))
sketch1.addConstraint(Sketcher.Constraint("Radius", 0, 3.0))
sketch1.addConstraint(Sketcher.Constraint("Radius", 1, 5.0255))
sketch1.addConstraint(Sketcher.Constraint("Radius", 3, 7.404))
sketch1.addConstraint(Sketcher.Constraint("Distance", 49, Q("0.105 in")))
sketch1.addConstraint(Sketcher.Constraint("DistanceY", -1, 1, 4, 2, Q("0.1973 in")))
sketch1.addConstraint(Sketcher.Constraint("DistanceX", 16, 2, -1, 1, Q("0.1973 in")))
sketch1.addConstraint(Sketcher.Constraint("DistanceX", -1, 1, 2, 2, 1.057002))
sketch1.addConstraint(Sketcher.Constraint("DistanceY", -1, 1, 14, 2, 1.057002))
sketch1.addConstraint(Sketcher.Constraint("DistanceY", -1, 1, 6, 3, 4.31627))
sketch1.addConstraint(Sketcher.Constraint("DistanceY", -1, 1, 8, 3, 6.079979))
sketch1.addConstraint(Sketcher.Constraint("DistanceX", 18, 3, -1, 1, 4.31627))
sketch1.addConstraint(Sketcher.Constraint("DistanceX", 20, 3, -1, 1, 6.079979))
sketch1.addConstraint(Sketcher.Constraint("DistanceX", -1, 1, 0, 2, 2.18014))
sketch1.addConstraint(Sketcher.Constraint("DistanceX", -1, 1, 3, 2, 0.231578))
sketch1.addConstraint(Sketcher.Constraint("DistanceY", -1, 1, 5, 2, 4.837771))
sketch1.addConstraint(Sketcher.Constraint("DistanceX", 8, 2, -1, 1, 2.831279))
sketch1.addConstraint(Sketcher.Constraint("DistanceY", -1, 1, 9, 2, 3.509261))
sketch1.addConstraint(Sketcher.Constraint("DistanceY", -1, 1, 10, 2, 4.579472))
sketch1.addConstraint(Sketcher.Constraint("DistanceY", -1, 1, 11, 2, 3.900742))
sketch1.addConstraint(Sketcher.Constraint("DistanceY", -1, 1, 12, 2, 2.18014))
sketch1.addConstraint(Sketcher.Constraint("DistanceY", -1, 1, 15, 2, 0.231578))
sketch1.addConstraint(Sketcher.Constraint("DistanceX", 17, 2, -1, 1, 4.837771))
sketch1.addConstraint(Sketcher.Constraint("DistanceX", 20, 2, -1, 1, 4.152049))
sketch1.addConstraint(Sketcher.Constraint("DistanceX", 21, 2, -1, 1, 3.509261))
sketch1.addConstraint(Sketcher.Constraint("DistanceX", 22, 2, -1, 1, 4.579472))
sketch1.addConstraint(Sketcher.Constraint("DistanceX", 23, 2, -1, 1, 3.900742))
sketch1.addConstraint(Sketcher.Constraint("DistanceX", 2, 3, -1, 1, 1.578823))
sketch1.addConstraint(Sketcher.Constraint("DistanceX", 14, 3, -1, 1, 5.895534))
pad1 = body.newObject("PartDesign::Pad", "Pad")
pad1.Profile = sketch1
pad1.Length = Q("0.5 in")
pad1.Reversed = True

sketch2 = body.newObject("Sketcher::SketchObject", "Sketch001")
sketch2.AttachmentSupport = (doc.getObject("XZ_Plane"), [""])
sketch2.MapMode = "FlatFace"
sketch2.AttachmentOffset = App.Placement(Vector(0, 0, -0.25 * 25.4), App.Rotation())
sketch2.addGeometry(Part.Circle(Vector(0, 0, 0), Vector(0, 0, 1), 1.7), False)
sketch2.addConstraint(Sketcher.Constraint("Coincident", 0, 3, -1, 1))
sketch2.addConstraint(Sketcher.Constraint("Diameter", 0, Q("0.134 in")))
pocket1 = body.newObject("PartDesign::Pocket", "Pocket")
pocket1.Profile = sketch2
pocket1.Length = Q("2.24 in")
pocket1.Reversed = True

doc.recompute()
